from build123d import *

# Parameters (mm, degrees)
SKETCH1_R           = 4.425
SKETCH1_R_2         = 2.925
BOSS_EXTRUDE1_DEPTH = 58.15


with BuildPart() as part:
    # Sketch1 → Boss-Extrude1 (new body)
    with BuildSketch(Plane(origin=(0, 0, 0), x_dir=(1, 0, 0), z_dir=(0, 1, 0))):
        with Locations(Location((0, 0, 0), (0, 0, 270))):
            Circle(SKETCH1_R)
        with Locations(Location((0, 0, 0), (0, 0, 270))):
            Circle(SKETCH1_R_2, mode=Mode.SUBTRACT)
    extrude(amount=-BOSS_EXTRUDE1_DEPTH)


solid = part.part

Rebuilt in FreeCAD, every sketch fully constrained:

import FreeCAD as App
import Part
import Sketcher
from FreeCAD import Vector

doc = App.newDocument("Part")
body = doc.addObject("PartDesign::Body", "Body")

# Sketch on XZ plane
sketch1 = body.newObject("Sketcher::SketchObject", "Sketch")
sketch1.AttachmentSupport = (doc.getObject("XZ_Plane"), [""])
sketch1.MapMode = "FlatFace"
sketch1.addGeometry([
    Part.Circle(Vector(0, 0, 0), Vector(0, 0, 1), 4.4),
    Part.Circle(Vector(0, 0, 0), Vector(0, 0, 1), 2.9),
], False)
sketch1.addConstraint([
    Sketcher.Constraint("Coincident", 0, 3, -1, 1),
    Sketcher.Constraint("Coincident", 1, 3, -1, 1),
    Sketcher.Constraint("Diameter", 0, 8.85),
    Sketcher.Constraint("Diameter", 1, 5.85),
])
pad1 = body.newObject("PartDesign::Pad", "Pad")
pad1.Profile = sketch1
pad1.Length = 58.15

doc.recompute()
